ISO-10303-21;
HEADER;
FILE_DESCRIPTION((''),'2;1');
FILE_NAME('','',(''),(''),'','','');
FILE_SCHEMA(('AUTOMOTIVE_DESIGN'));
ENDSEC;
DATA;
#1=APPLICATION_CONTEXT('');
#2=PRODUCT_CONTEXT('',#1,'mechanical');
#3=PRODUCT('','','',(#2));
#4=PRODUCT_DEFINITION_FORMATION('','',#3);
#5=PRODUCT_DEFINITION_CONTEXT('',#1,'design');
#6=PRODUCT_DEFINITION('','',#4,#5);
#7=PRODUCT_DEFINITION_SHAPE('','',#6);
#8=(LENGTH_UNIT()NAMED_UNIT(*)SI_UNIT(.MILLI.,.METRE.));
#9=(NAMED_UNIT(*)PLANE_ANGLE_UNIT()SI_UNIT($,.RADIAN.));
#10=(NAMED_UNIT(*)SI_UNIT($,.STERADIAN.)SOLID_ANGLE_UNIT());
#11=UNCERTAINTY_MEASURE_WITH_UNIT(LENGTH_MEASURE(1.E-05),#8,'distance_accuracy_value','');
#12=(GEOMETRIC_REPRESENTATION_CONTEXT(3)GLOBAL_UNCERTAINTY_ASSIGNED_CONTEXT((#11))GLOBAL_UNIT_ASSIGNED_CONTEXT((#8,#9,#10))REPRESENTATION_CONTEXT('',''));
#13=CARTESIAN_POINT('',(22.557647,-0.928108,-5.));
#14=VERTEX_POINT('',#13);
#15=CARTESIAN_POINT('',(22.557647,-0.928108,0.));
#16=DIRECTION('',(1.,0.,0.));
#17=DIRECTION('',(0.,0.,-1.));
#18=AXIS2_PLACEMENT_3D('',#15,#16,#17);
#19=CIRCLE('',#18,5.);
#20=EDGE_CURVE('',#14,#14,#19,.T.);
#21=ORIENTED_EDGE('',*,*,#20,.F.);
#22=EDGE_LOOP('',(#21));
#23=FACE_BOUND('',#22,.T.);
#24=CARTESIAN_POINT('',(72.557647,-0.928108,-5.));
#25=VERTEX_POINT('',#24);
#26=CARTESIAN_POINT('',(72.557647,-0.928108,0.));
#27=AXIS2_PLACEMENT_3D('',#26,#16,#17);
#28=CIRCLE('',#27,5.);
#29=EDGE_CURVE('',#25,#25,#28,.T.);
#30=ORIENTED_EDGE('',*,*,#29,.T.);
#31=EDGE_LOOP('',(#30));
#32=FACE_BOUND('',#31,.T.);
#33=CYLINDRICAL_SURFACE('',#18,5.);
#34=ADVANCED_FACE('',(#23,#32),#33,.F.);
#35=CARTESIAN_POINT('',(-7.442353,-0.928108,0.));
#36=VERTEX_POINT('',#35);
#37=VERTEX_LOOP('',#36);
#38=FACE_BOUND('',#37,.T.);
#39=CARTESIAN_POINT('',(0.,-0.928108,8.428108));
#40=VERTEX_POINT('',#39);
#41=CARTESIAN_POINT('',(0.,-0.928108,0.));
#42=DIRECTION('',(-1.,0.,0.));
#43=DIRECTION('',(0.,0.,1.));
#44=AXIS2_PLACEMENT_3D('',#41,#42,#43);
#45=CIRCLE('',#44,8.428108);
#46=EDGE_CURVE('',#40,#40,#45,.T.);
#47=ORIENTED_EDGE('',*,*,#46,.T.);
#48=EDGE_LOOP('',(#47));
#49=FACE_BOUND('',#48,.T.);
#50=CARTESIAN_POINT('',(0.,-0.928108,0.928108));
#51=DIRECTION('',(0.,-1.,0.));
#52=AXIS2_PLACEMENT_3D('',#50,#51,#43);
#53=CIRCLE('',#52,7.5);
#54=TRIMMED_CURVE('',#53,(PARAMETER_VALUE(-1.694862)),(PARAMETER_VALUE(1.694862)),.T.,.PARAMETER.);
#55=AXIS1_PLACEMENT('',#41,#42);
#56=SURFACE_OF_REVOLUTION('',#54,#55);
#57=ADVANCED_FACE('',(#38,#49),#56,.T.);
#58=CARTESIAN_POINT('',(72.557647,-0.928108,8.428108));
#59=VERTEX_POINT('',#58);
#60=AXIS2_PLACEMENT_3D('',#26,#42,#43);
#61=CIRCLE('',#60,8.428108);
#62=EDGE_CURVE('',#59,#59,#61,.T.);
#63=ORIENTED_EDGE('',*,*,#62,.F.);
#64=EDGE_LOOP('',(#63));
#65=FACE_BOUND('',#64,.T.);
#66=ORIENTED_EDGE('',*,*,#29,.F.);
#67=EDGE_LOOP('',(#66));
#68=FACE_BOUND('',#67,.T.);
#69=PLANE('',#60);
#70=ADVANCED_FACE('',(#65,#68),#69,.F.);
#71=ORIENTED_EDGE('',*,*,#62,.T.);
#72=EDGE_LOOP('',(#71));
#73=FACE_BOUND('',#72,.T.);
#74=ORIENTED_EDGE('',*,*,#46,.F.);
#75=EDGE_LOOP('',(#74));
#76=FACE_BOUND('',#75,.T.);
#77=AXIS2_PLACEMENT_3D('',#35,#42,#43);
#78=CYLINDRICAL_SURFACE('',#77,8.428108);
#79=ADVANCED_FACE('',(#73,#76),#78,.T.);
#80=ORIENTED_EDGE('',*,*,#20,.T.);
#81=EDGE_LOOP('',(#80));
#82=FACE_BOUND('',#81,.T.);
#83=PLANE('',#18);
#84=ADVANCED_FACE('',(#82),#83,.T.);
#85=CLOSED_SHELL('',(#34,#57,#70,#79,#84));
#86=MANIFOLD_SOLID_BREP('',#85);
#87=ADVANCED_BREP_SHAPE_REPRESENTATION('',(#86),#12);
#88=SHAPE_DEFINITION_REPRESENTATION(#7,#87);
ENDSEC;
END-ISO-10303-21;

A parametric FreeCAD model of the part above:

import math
import FreeCAD as App
import Part
import Sketcher
from FreeCAD import Vector
Q = App.Units.Quantity

doc = App.newDocument("Part")
body = doc.addObject("PartDesign::Body", "Body")

# Sketch on XY plane
sketch1 = doc.addObject("Sketcher::SketchObject", "Sketch")
body.addObject(sketch1)
sketch1.AttachmentSupport = (doc.XY_Plane, [""])
sketch1.MapMode = "FlatFace"
sketch1.addGeometry(Part.LineSegment(Vector(73, 8, 0), Vector(0, 8, 0)), False)
sketch1.addGeometry(Part.ArcOfCircle(Part.Circle(Vector(0, 0, 0), Vector(0, 0, 1), 8), math.radians(90), math.radians(187)), False)
sketch1.addGeometry(Part.LineSegment(Vector(-7, -1, 0), Vector(73, -1, 0)), False)
sketch1.addGeometry(Part.LineSegment(Vector(73, -1, 0), Vector(73, 8, 0)), False)
sketch1.addGeometry(Part.LineSegment(Vector(-7, -1, 0), Vector(73, -1, 0)), True)  # axis
sketch1.addConstraint(Sketcher.Constraint("Tangent", 0, 2, 1, 1))
sketch1.addConstraint(Sketcher.Constraint("Coincident", 1, 2, 2, 1))
sketch1.addConstraint(Sketcher.Constraint("Coincident", 2, 2, 3, 1))
sketch1.addConstraint(Sketcher.Constraint("Coincident", 3, 2, 0, 1))
sketch1.addConstraint(Sketcher.Constraint("Horizontal", 0))
sketch1.addConstraint(Sketcher.Constraint("Horizontal", 2))
sketch1.addConstraint(Sketcher.Constraint("Vertical", 3))
sketch1.addConstraint(Sketcher.Constraint("Horizontal", 4))
sketch1.addConstraint(Sketcher.Constraint("Coincident", 1, 3, -1, 1))
sketch1.addConstraint(Sketcher.Constraint("Coincident", 4, 1, 1, 2))
sketch1.addConstraint(Sketcher.Constraint("Vertical", 3, 2, 4, 2))
sketch1.addConstraint(Sketcher.Constraint("Radius", 1, Q("7.5 mm")))
sketch1.addConstraint(Sketcher.Constraint("DistanceX", 2, 1, 2, 2, Q("80 mm")))
sketch1.addConstraint(Sketcher.Constraint("DistanceX", 0, 2, 0, 1, Q("72.557647 mm")))
revolution = doc.addObject("PartDesign::Revolution", "Revolution")
body.addObject(revolution)
revolution.Profile = sketch1
revolution.ReferenceAxis = (sketch1, ["Axis0"])
revolution.Angle = 360

# Sketch on YZ plane
sketch2 = doc.addObject("Sketcher::SketchObject", "Sketch001")
body.addObject(sketch2)
sketch2.AttachmentSupport = (doc.YZ_Plane, [""])
sketch2.MapMode = "FlatFace"
sketch2.AttachmentOffset = App.Placement(Vector(0, 0, 72.557647), App.Rotation())
sketch2.addGeometry(Part.Circle(Vector(-1, 0, 0), Vector(0, 0, 1), 5), False)
sketch2.addConstraint(Sketcher.Constraint("PointOnObject", 0, 3, -1))
sketch2.addConstraint(Sketcher.Constraint("Diameter", 0, Q("10 mm")))
sketch2.addConstraint(Sketcher.Constraint("DistanceX", 0, 3, -1, 1, Q("0.928108 mm")))
pocket1 = doc.addObject("PartDesign::Pocket", "Pocket")
body.addObject(pocket1)
pocket1.Profile = sketch2
pocket1.Length = 50

doc.recompute()
